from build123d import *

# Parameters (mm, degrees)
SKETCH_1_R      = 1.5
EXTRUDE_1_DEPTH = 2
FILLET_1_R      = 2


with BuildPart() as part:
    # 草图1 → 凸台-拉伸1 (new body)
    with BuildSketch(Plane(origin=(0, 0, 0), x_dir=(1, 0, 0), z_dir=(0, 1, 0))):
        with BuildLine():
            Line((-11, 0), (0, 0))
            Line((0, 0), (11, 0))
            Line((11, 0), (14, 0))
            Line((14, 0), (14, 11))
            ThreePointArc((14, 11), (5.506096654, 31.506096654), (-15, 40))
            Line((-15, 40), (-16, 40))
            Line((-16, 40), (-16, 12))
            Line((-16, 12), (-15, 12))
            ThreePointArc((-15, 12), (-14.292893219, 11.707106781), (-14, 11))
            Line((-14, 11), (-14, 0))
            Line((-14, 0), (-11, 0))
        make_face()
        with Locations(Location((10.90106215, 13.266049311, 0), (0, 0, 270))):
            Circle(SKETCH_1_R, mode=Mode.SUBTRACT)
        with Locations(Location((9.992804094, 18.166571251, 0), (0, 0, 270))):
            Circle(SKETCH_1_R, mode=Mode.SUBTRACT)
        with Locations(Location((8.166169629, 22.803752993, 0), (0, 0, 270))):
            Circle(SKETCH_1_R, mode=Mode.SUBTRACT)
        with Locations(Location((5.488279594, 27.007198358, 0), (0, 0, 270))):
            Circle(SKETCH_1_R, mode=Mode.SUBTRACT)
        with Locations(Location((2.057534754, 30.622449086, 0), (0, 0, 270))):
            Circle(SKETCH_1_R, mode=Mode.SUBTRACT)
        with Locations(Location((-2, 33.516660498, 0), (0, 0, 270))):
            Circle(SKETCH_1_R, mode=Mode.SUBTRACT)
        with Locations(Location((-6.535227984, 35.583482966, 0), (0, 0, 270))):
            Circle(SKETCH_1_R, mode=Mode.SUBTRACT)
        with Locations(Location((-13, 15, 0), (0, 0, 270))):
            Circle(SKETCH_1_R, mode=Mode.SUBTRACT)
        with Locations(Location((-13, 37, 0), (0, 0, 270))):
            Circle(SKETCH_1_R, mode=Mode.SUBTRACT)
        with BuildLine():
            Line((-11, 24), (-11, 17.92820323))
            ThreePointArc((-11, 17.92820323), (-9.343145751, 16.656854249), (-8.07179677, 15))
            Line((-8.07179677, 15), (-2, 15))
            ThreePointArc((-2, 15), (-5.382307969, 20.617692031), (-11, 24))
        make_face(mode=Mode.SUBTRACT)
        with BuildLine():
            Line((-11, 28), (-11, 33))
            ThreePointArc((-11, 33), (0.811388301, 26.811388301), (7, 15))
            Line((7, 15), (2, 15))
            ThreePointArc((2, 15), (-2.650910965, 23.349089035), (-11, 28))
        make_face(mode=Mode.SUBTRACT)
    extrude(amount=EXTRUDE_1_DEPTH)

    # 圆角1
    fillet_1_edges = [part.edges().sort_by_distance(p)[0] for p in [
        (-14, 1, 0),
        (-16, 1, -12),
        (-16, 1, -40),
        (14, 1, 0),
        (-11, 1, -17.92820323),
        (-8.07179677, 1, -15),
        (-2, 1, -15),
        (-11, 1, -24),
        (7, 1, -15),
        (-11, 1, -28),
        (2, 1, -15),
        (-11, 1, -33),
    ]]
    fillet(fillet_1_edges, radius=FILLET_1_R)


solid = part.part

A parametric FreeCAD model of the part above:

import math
import FreeCAD as App
import Part
import Sketcher


def edges_at(feature, points):
    """Names of the edges that pass closest to the given points."""
    edges = feature.Shape.Edges
    near = lambda p: min(range(len(edges)), key=lambda i: edges[i].distToShape(Part.Vertex(*p))[0])
    return sorted({f"Edge{near(p) + 1}" for p in points})

doc = App.newDocument("Part")
body = doc.addObject("PartDesign::Body", "Body")

sketch1 = body.newObject("Sketcher::SketchObject", "Sketch")
sketch1.AttachmentSupport = (doc.getObject("XZ_Plane"), [""])
sketch1.MapMode = "FlatFace"
sketch1.addGeometry(Part.LineSegment(App.Vector(14, 0, 0), App.Vector(14, -11, 0)), False)
sketch1.addGeometry(Part.ArcOfCircle(Part.Circle(App.Vector(-15, -11, 0), App.Vector(0, 0, 1), 29), math.radians(-90), math.radians(0)), False)
sketch1.addGeometry(Part.LineSegment(App.Vector(-15, -40, 0), App.Vector(-16, -40, 0)), False)
sketch1.addGeometry(Part.LineSegment(App.Vector(-16, -40, 0), App.Vector(-16, -12, 0)), False)
sketch1.addGeometry(Part.LineSegment(App.Vector(-16, -12, 0), App.Vector(-15, -12, 0)), False)
sketch1.addGeometry(Part.ArcOfCircle(Part.Circle(App.Vector(-15, -11, 0), App.Vector(0, 0, 1), 1), math.radians(-90), math.radians(0)), False)
sketch1.addGeometry(Part.LineSegment(App.Vector(-14, -11, 0), App.Vector(-14, 0, 0)), False)
sketch1.addGeometry(Part.LineSegment(App.Vector(-14, 0, 0), App.Vector(14, 0, 0)), False)
sketch1.addGeometry(Part.Circle(App.Vector(-13, -15, 0), App.Vector(0, 0, 1), 1.5), False)
sketch1.addGeometry(Part.LineSegment(App.Vector(-11, -17.9, 0), App.Vector(-11, -24, 0)), False)
sketch1.addGeometry(Part.ArcOfCircle(Part.Circle(App.Vector(-15, -11, 0), App.Vector(0, 0, 1), 13.6), math.radians(-73), math.radians(-17)), False)
sketch1.addGeometry(Part.LineSegment(App.Vector(-2, -15, 0), App.Vector(-8.1, -15, 0)), False)
sketch1.addGeometry(Part.ArcOfCircle(Part.Circle(App.Vector(-15, -11, 0), App.Vector(0, 0, 1), 8), math.radians(-60), math.radians(-30)), False)
sketch1.addGeometry(Part.ArcOfCircle(Part.Circle(App.Vector(-15, -11, 0), App.Vector(0, 0, 1), 17.5), math.radians(-77), math.radians(-13)), False)
sketch1.addGeometry(Part.LineSegment(App.Vector(-11, -28, 0), App.Vector(-11, -33, 0)), False)
sketch1.addGeometry(Part.ArcOfCircle(Part.Circle(App.Vector(-15, -11, 0), App.Vector(0, 0, 1), 22.4), math.radians(-80), math.radians(-10)), False)
sketch1.addGeometry(Part.LineSegment(App.Vector(7, -15, 0), App.Vector(2, -15, 0)), False)
sketch1.addGeometry(Part.Circle(App.Vector(10.9, -13.3, 0), App.Vector(0, 0, 1), 1.5), False)
sketch1.addGeometry(Part.Circle(App.Vector(10, -18.2, 0), App.Vector(0, 0, 1), 1.5), False)
sketch1.addGeometry(Part.Circle(App.Vector(8.2, -22.8, 0), App.Vector(0, 0, 1), 1.5), False)
sketch1.addGeometry(Part.Circle(App.Vector(-13, -37, 0), App.Vector(0, 0, 1), 1.5), False)
sketch1.addGeometry(Part.Circle(App.Vector(-2, -33.5, 0), App.Vector(0, 0, 1), 1.5), False)
sketch1.addGeometry(Part.Circle(App.Vector(-6.5, -35.6, 0), App.Vector(0, 0, 1), 1.5), False)
sketch1.addGeometry(Part.Circle(App.Vector(5.5, -27, 0), App.Vector(0, 0, 1), 1.5), False)
sketch1.addGeometry(Part.Circle(App.Vector(2.1, -30.6, 0), App.Vector(0, 0, 1), 1.5), False)
sketch1.addConstraint(Sketcher.Constraint("Tangent", 0, 2, 1, 2))
sketch1.addConstraint(Sketcher.Constraint("Tangent", 1, 1, 2, 1))
sketch1.addConstraint(Sketcher.Constraint("Coincident", 2, 2, 3, 1))
sketch1.addConstraint(Sketcher.Constraint("Coincident", 3, 2, 4, 1))
sketch1.addConstraint(Sketcher.Constraint("Tangent", 4, 2, 5, 1))
sketch1.addConstraint(Sketcher.Constraint("Tangent", 5, 2, 6, 1))
sketch1.addConstraint(Sketcher.Constraint("Coincident", 6, 2, 7, 1))
sketch1.addConstraint(Sketcher.Constraint("Coincident", 7, 2, 0, 1))
sketch1.addConstraint(Sketcher.Constraint("Coincident", 9, 2, 10, 1))
sketch1.addConstraint(Sketcher.Constraint("Coincident", 10, 2, 11, 1))
sketch1.addConstraint(Sketcher.Constraint("Coincident", 11, 2, 12, 2))
sketch1.addConstraint(Sketcher.Constraint("Coincident", 12, 1, 9, 1))
sketch1.addConstraint(Sketcher.Constraint("Coincident", 13, 1, 14, 1))
sketch1.addConstraint(Sketcher.Constraint("Coincident", 14, 2, 15, 1))
sketch1.addConstraint(Sketcher.Constraint("Coincident", 15, 2, 16, 1))
sketch1.addConstraint(Sketcher.Constraint("Coincident", 16, 2, 13, 2))
sketch1.addConstraint(Sketcher.Constraint("Vertical", 0))
sketch1.addConstraint(Sketcher.Constraint("Horizontal", 2))
sketch1.addConstraint(Sketcher.Constraint("Vertical", 3))
sketch1.addConstraint(Sketcher.Constraint("Horizontal", 4))
sketch1.addConstraint(Sketcher.Constraint("Vertical", 6))
sketch1.addConstraint(Sketcher.Constraint("Horizontal", 7))
sketch1.addConstraint(Sketcher.Constraint("Vertical", 9))
sketch1.addConstraint(Sketcher.Constraint("Horizontal", 11))
sketch1.addConstraint(Sketcher.Constraint("Vertical", 14))
sketch1.addConstraint(Sketcher.Constraint("Horizontal", 16))
sketch1.addConstraint(Sketcher.Constraint("Coincident", 5, 3, 1, 3))
sketch1.addConstraint(Sketcher.Constraint("Coincident", 10, 3, 1, 3))
sketch1.addConstraint(Sketcher.Constraint("Coincident", 12, 3, 1, 3))
sketch1.addConstraint(Sketcher.Constraint("Coincident", 13, 3, 1, 3))
sketch1.addConstraint(Sketcher.Constraint("Coincident", 15, 3, 1, 3))
sketch1.addConstraint(Sketcher.Constraint("Equal", 8, 17))
sketch1.addConstraint(Sketcher.Constraint("Equal", 17, 18))
sketch1.addConstraint(Sketcher.Constraint("Equal", 18, 19))
sketch1.addConstraint(Sketcher.Constraint("Equal", 19, 20))
sketch1.addConstraint(Sketcher.Constraint("Equal", 20, 21))
sketch1.addConstraint(Sketcher.Constraint("Equal", 21, 22))
sketch1.addConstraint(Sketcher.Constraint("Equal", 22, 23))
sketch1.addConstraint(Sketcher.Constraint("Equal", 23, 24))
sketch1.addConstraint(Sketcher.Constraint("Symmetric", 6, 2, 7, 2, -1, 1))
sketch1.addConstraint(Sketcher.Constraint("Symmetric", 10, 2, 16, 2, -2))
sketch1.addConstraint(Sketcher.Constraint("Horizontal", 8, 3, 10, 2))
sketch1.addConstraint(Sketcher.Constraint("Vertical", 8, 3, 20, 3))
sketch1.addConstraint(Sketcher.Constraint("Vertical", 21, 3, 10, 2))
sketch1.addConstraint(Sketcher.Constraint("Vertical", 12, 1, 13, 1))
sketch1.addConstraint(Sketcher.Constraint("Equal", 11, 9))
sketch1.addConstraint(Sketcher.Constraint("Diameter", 8, 3.0))
sketch1.addConstraint(Sketcher.Constraint("Radius", 1, 29.0))
sketch1.addConstraint(Sketcher.Constraint("Radius", 5, 1.0))
sketch1.addConstraint(Sketcher.Constraint("Radius", 12, 8.0))
sketch1.addConstraint(Sketcher.Constraint("DistanceX", 2, 2, 2, 1, 1.0))
sketch1.addConstraint(Sketcher.Constraint("DistanceX", 16, 2, 16, 1, 5.0))
sketch1.addConstraint(Sketcher.Constraint("DistanceY", 0, 2, 0, 1, 11.0))
sketch1.addConstraint(Sketcher.Constraint("DistanceX", 8, 3, -1, 1, 13.0))
sketch1.addConstraint(Sketcher.Constraint("DistanceY", 8, 3, -1, 1, 15.0))
sketch1.addConstraint(Sketcher.Constraint("DistanceY", 20, 3, -1, 1, 37.0))
sketch1.addConstraint(Sketcher.Constraint("DistanceX", 21, 3, -1, 1, 2.0))
sketch1.addConstraint(Sketcher.Constraint("DistanceY", 23, 3, -1, 1, 27.007198))
sketch1.addConstraint(Sketcher.Constraint("DistanceY", 17, 3, -1, 1, 13.266049))
sketch1.addConstraint(Sketcher.Constraint("DistanceY", 18, 3, -1, 1, 18.166571))
sketch1.addConstraint(Sketcher.Constraint("DistanceX", -1, 1, 19, 3, 8.16617))
sketch1.addConstraint(Sketcher.Constraint("DistanceY", 21, 3, -1, 1, 33.51666))
sketch1.addConstraint(Sketcher.Constraint("DistanceX", -1, 1, 23, 3, 5.48828))
sketch1.addConstraint(Sketcher.Constraint("DistanceY", 24, 3, -1, 1, 30.622449))
sketch1.addConstraint(Sketcher.Constraint("DistanceX", 18, 3, 17, 3, 0.908258))
sketch1.addConstraint(Sketcher.Constraint("DistanceY", 19, 3, 18, 3, 4.637182))
sketch1.addConstraint(Sketcher.Constraint("DistanceY", 22, 3, 19, 3, 12.77973))
sketch1.addConstraint(Sketcher.Constraint("DistanceX", 24, 3, 18, 3, 7.935269))
sketch1.addConstraint(Sketcher.Constraint("DistanceX", -1, 1, 17, 3, 10.901062))
sketch1.addConstraint(Sketcher.Constraint("DistanceX", 22, 3, -1, 1, 6.535228))
pad1 = body.newObject("PartDesign::Pad", "Pad")
pad1.Profile = sketch1
pad1.Length = 2
pad1.Reversed = True
doc.recompute()

fillet = body.newObject("PartDesign::Fillet", "Fillet")
fillet.Base = (pad1, edges_at(pad1, [
    (-14, 1, 0),
    (-16, 1, -12),
    (-16, 1, -40),
    (14, 1, 0),
    (-11, 1, -17.928),
    (-8.072, 1, -15),
    (-2, 1, -15),
    (-11, 1, -24),
    (7, 1, -15),
    (-11, 1, -28),
    (2, 1, -15),
    (-11, 1, -33),
]))
fillet.Radius = 2

doc.recompute()
